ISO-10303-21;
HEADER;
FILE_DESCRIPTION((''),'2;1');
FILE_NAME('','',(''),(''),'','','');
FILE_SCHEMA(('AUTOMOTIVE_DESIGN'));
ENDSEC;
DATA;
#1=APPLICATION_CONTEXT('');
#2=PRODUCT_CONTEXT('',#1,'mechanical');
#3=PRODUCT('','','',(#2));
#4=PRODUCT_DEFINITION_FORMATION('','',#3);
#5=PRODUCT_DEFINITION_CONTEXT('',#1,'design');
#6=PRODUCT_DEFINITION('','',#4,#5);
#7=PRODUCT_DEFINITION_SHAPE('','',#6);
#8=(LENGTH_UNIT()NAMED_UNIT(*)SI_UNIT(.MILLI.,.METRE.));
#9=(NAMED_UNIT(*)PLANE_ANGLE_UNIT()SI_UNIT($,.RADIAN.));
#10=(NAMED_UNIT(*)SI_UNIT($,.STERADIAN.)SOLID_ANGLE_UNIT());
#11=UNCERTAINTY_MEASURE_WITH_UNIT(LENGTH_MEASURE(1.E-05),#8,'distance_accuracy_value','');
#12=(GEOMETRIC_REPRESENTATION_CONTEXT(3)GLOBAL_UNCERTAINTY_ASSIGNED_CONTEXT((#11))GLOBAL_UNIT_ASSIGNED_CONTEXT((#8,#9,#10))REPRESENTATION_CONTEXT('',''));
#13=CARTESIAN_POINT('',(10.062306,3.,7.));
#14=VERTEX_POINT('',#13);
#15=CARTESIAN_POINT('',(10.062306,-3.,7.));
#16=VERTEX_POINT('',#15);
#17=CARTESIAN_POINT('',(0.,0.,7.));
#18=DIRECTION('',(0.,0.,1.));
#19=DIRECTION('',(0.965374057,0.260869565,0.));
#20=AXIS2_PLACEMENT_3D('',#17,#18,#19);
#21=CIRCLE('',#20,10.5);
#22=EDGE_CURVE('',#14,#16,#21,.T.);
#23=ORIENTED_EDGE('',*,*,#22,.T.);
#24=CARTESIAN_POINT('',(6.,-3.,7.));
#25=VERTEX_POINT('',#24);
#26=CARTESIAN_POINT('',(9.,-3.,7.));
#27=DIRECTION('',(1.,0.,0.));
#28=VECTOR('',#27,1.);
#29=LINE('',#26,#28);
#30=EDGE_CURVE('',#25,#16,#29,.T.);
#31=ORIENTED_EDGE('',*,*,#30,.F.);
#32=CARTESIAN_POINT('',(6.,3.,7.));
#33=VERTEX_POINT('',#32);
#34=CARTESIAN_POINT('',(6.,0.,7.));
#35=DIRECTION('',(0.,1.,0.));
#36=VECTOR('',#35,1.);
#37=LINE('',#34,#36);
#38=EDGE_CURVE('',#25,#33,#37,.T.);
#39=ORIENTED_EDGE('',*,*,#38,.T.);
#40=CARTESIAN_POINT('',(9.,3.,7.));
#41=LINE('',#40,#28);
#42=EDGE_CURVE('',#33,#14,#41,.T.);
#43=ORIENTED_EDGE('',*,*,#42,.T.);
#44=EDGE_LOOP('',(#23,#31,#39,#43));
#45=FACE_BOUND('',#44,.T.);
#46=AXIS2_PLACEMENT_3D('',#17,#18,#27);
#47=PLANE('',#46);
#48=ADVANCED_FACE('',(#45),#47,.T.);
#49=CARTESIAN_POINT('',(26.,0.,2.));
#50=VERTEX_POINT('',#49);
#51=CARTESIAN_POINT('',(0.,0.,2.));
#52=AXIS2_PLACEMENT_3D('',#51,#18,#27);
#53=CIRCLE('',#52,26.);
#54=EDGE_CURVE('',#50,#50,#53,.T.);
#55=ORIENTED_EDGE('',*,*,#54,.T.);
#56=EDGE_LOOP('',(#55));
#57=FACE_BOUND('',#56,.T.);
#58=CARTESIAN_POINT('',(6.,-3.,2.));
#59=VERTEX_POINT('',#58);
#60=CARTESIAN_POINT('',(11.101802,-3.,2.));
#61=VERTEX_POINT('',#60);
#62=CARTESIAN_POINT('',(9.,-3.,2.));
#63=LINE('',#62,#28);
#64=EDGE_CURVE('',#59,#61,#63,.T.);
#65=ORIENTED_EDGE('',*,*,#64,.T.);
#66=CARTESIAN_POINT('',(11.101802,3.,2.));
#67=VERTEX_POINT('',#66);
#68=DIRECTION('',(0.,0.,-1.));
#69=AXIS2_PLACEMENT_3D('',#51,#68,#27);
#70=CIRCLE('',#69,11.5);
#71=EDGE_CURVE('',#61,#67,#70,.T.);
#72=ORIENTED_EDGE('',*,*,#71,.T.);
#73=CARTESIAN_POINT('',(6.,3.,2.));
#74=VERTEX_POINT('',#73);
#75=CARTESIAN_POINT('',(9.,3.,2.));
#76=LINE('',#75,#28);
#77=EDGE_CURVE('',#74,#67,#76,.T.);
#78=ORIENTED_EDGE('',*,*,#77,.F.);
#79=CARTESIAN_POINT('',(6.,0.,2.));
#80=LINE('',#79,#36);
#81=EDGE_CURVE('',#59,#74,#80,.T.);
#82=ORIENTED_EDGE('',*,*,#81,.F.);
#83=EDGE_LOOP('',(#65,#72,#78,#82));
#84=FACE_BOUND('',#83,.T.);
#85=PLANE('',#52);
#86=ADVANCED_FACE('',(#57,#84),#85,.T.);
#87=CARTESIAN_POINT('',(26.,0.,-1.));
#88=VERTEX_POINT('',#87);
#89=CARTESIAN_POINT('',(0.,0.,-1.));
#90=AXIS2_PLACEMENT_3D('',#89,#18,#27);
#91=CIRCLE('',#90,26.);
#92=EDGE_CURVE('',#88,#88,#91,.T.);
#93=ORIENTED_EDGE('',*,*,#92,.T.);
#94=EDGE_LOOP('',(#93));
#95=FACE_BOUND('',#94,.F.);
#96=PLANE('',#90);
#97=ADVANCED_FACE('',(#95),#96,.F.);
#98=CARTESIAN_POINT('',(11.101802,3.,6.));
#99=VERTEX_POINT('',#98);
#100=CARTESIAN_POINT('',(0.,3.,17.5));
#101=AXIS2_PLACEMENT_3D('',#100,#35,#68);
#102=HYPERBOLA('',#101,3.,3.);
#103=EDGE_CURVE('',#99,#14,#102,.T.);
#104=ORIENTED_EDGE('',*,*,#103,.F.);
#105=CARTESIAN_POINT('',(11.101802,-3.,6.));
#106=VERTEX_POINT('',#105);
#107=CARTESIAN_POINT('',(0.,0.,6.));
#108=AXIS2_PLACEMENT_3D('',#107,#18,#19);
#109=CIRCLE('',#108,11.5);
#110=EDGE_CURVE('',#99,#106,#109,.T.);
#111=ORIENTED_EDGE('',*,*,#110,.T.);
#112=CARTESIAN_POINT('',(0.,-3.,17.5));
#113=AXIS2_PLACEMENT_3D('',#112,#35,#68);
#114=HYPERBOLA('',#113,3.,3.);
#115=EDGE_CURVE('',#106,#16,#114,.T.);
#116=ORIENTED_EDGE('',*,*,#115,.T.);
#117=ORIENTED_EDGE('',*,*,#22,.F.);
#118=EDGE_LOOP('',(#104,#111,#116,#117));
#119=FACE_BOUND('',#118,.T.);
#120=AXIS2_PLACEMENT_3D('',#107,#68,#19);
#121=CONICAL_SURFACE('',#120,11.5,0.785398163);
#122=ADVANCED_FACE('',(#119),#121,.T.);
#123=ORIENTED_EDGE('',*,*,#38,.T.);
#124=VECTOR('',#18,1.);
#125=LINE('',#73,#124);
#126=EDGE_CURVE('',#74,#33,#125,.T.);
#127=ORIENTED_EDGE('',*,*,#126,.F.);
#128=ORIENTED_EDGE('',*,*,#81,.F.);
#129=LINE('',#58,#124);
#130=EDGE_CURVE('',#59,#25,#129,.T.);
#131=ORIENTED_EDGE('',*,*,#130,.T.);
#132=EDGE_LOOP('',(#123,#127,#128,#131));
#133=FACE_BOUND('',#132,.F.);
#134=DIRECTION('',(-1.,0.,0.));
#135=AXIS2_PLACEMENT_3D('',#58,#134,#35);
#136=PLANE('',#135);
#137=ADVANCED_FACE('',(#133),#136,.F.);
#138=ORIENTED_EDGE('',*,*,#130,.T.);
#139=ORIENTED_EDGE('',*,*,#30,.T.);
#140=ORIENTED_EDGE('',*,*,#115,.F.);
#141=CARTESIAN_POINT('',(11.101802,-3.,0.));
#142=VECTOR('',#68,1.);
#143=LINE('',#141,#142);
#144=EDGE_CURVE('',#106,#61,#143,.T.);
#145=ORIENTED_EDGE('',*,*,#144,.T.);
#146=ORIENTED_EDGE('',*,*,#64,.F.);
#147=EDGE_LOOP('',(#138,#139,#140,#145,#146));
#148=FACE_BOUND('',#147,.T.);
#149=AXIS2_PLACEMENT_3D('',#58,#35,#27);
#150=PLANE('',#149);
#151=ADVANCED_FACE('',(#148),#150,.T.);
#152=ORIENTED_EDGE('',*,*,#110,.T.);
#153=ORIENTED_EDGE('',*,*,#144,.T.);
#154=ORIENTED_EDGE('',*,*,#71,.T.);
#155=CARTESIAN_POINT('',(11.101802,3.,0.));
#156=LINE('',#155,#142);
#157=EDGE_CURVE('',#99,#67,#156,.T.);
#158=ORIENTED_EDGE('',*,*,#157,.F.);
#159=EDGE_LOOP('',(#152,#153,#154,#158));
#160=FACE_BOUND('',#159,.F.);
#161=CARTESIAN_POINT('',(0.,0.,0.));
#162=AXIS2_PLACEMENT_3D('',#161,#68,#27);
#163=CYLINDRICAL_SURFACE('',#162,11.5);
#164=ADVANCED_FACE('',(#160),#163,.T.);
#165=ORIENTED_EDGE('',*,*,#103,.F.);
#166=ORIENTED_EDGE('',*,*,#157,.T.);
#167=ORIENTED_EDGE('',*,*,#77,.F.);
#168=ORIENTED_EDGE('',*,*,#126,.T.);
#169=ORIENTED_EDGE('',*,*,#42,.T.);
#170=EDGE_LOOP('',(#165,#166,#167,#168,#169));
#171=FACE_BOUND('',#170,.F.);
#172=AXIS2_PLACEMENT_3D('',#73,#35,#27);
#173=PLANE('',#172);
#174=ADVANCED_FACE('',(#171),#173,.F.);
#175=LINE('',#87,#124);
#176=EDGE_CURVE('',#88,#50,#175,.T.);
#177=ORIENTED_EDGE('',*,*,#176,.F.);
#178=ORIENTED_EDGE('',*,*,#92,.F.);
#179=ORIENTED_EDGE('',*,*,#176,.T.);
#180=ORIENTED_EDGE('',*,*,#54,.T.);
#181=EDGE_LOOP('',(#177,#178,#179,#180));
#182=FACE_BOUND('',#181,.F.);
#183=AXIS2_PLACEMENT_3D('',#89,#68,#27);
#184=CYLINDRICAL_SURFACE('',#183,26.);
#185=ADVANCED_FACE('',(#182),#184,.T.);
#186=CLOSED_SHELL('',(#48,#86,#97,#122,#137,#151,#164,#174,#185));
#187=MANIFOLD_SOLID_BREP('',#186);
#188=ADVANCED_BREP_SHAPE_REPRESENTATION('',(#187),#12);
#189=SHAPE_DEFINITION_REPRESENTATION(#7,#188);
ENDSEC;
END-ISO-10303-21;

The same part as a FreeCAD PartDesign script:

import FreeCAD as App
import Part
import Sketcher
from FreeCAD import Vector
Q = App.Units.Quantity


def edges_at(feature, points):
    """Names of the edges that pass closest to the given points."""
    edges = feature.Shape.Edges
    near = lambda p: min(range(len(edges)), key=lambda i: edges[i].distToShape(Part.Vertex(*p))[0])
    return sorted({f"Edge{near(p) + 1}" for p in points})

doc = App.newDocument("Part")
params = doc.addObject("Spreadsheet::Sheet", "Params")
for row, (alias, value) in enumerate([
    ("sketch1_width", "6 mm"),
    ("pad1_length", "5 mm"),
    ("sketch2_diameter", "52 mm"),
    ("pad2_length", "3 mm"),
    ("sketch3_diameter", "23 mm"),
    ("pad3_length", "7 mm"),
    ("chamfer_size", "1 mm"),
], start=1):
    params.set(f"A{row}", alias)
    params.set(f"B{row}", "=" + value)
    params.setAlias(f"B{row}", alias)

body = doc.addObject("PartDesign::Body", "Body")

# Sketch on XY plane
sketch1 = body.newObject("Sketcher::SketchObject", "Sketch")
sketch1.AttachmentSupport = (doc.getObject("XY_Plane"), [""])
sketch1.MapMode = "FlatFace"
sketch1.AttachmentOffset = App.Placement(Vector(0, 0, 2), App.Rotation())
sketch1.addGeometry(Part.LineSegment(Vector(6, 3, 0), Vector(6, -3, 0)), False)
sketch1.addGeometry(Part.LineSegment(Vector(6, -3, 0), Vector(12, -3, 0)), False)
sketch1.addGeometry(Part.LineSegment(Vector(12, -3, 0), Vector(12, 3, 0)), False)
sketch1.addGeometry(Part.LineSegment(Vector(12, 3, 0), Vector(6, 3, 0)), False)
sketch1.addConstraint(Sketcher.Constraint("Coincident", 0, 2, 1, 1))
sketch1.addConstraint(Sketcher.Constraint("Coincident", 1, 2, 2, 1))
sketch1.addConstraint(Sketcher.Constraint("Coincident", 2, 2, 3, 1))
sketch1.addConstraint(Sketcher.Constraint("Coincident", 3, 2, 0, 1))
sketch1.addConstraint(Sketcher.Constraint("Vertical", 0))
sketch1.addConstraint(Sketcher.Constraint("Horizontal", 1))
sketch1.addConstraint(Sketcher.Constraint("Vertical", 2))
sketch1.addConstraint(Sketcher.Constraint("Horizontal", 3))
sketch1.addConstraint(Sketcher.Constraint("Equal", 3, 0))
sketch1.addConstraint(Sketcher.Constraint("DistanceX", 1, 1, 1, 2, Q("6 mm")))
sketch1.addConstraint(Sketcher.Constraint("DistanceX", -1, 1, 0, 2, Q("6 mm")))
sketch1.addConstraint(Sketcher.Constraint("DistanceY", 0, 2, -1, 1, Q("3 mm")))
sketch1.setExpression("Constraints[9]", "Params.sketch1_width")
pad1 = body.newObject("PartDesign::Pad", "Pad")
pad1.Profile = sketch1
pad1.setExpression("Length", "Params.pad1_length")
body2 = doc.addObject("PartDesign::Body", "Body001")

# Sketch on XY plane
sketch2 = body2.newObject("Sketcher::SketchObject", "Sketch001")
sketch2.AttachmentSupport = (doc.getObject("XY_Plane001"), [""])
sketch2.MapMode = "FlatFace"
sketch2.AttachmentOffset = App.Placement(Vector(0, 0, -1), App.Rotation())
sketch2.addGeometry(Part.Circle(Vector(0, 0, 0), Vector(0, 0, 1), 26), False)
sketch2.addConstraint(Sketcher.Constraint("Coincident", 0, 3, -1, 1))
sketch2.addConstraint(Sketcher.Constraint("Diameter", 0, Q("52 mm")))
sketch2.setExpression("Constraints[1]", "Params.sketch2_diameter")
pad2 = body2.newObject("PartDesign::Pad", "Pad001")
pad2.Profile = sketch2
pad2.setExpression("Length", "Params.pad2_length")
body3 = doc.addObject("PartDesign::Body", "Body002")

# Sketch on XY plane
sketch3 = body3.newObject("Sketcher::SketchObject", "Sketch002")
sketch3.AttachmentSupport = (doc.getObject("XY_Plane002"), [""])
sketch3.MapMode = "FlatFace"
sketch3.addGeometry(Part.Circle(Vector(0, 0, 0), Vector(0, 0, 1), 12), False)
sketch3.addConstraint(Sketcher.Constraint("Coincident", 0, 3, -1, 1))
sketch3.addConstraint(Sketcher.Constraint("Diameter", 0, Q("23 mm")))
sketch3.setExpression("Constraints[1]", "Params.sketch3_diameter")
pad3 = body3.newObject("PartDesign::Pad", "Pad002")
pad3.Profile = sketch3
pad3.setExpression("Length", "Params.pad3_length")
doc.recompute()

boolean = body3.newObject("PartDesign::Boolean", "Boolean")
boolean.Type = "Fuse"
boolean.addObjects([body2])
doc.recompute()

boolean2 = body3.newObject("PartDesign::Boolean", "Boolean001")
boolean2.Type = "Cut"
boolean2.addObjects([body])
doc.recompute()

chamfer = body3.newObject("PartDesign::Chamfer", "Chamfer")
chamfer.Base = (boolean2, edges_at(boolean2, [(-11.5, 0, 7)]))
chamfer.setExpression("Size", "Params.chamfer_size")

doc.recompute()
